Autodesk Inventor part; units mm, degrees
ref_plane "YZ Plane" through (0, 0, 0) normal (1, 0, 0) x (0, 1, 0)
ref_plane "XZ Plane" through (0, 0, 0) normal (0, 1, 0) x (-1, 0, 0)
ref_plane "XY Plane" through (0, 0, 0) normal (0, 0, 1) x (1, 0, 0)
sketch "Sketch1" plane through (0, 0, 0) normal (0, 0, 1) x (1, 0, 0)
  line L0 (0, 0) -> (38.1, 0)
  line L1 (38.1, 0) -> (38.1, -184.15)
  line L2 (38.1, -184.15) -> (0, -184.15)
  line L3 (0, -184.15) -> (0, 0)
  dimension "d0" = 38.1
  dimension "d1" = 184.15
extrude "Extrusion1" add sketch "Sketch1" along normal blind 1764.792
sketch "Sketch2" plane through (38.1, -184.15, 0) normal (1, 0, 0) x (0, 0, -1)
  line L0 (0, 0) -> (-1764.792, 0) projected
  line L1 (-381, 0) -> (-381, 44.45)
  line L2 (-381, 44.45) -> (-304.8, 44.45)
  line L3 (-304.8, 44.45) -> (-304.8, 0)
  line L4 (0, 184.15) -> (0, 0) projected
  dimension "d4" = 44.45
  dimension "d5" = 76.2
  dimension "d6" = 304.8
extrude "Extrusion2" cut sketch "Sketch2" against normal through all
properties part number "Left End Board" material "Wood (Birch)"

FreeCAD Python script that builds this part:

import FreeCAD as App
import Part
import Sketcher
from FreeCAD import Vector
Q = App.Units.Quantity


def add_polygon(sketch, points):
    """Adds a closed chain of lines whose ends are joined by coincident constraints."""
    first, n = sketch.GeometryCount, len(points)
    for a, b in zip(points, points[1:] + points[:1]):
        sketch.addGeometry(Part.LineSegment(App.Vector(*a, 0), App.Vector(*b, 0)), False)
    for i in range(n):
        sketch.addConstraint(Sketcher.Constraint("Coincident", first + i, 2, first + (i + 1) % n, 1))

doc = App.newDocument("Part")
body = doc.addObject("PartDesign::Body", "Body")

# Sketch on XY plane
sketch1 = body.newObject("Sketcher::SketchObject", "Sketch")
sketch1.AttachmentSupport = (doc.getObject("XY_Plane"), [""])
sketch1.MapMode = "FlatFace"
add_polygon(sketch1, [(38, 0), (0, 0), (0, -184), (38, -184)])  # lines 0-3
sketch1.addConstraint([
    Sketcher.Constraint("Horizontal", 0),
    Sketcher.Constraint("Vertical", 1),
    Sketcher.Constraint("Horizontal", 2),
    Sketcher.Constraint("Vertical", 3),
    Sketcher.Constraint("Coincident", 0, 2, -1, 1),
    Sketcher.Constraint("DistanceX", 0, 2, 0, 1, Q("1.5 in")),
    Sketcher.Constraint("DistanceY", 1, 2, 1, 1, Q("7.25 in")),
])
pad1 = body.newObject("PartDesign::Pad", "Pad")
pad1.Profile = sketch1
pad1.Length = Q("69.48 in")

# Sketch on YZ plane
sketch2 = body.newObject("Sketcher::SketchObject", "Sketch001")
sketch2.AttachmentSupport = (doc.getObject("YZ_Plane"), [""])
sketch2.MapMode = "FlatFace"
sketch2.AttachmentOffset = App.Placement(Vector(0, 0, 1.5 * 25.4), App.Rotation())
add_polygon(sketch2, [(-184, 381), (-184, 305), (-140, 305), (-140, 381)])  # lines 0-3
sketch2.addConstraint([
    Sketcher.Constraint("Vertical", 0),
    Sketcher.Constraint("Horizontal", 1),
    Sketcher.Constraint("Vertical", 2),
    Sketcher.Constraint("Horizontal", 3),
    Sketcher.Constraint("DistanceY", 0, 2, 0, 1, Q("3 in")),
    Sketcher.Constraint("DistanceY", -1, 1, 0, 2, Q("12 in")),
    Sketcher.Constraint("DistanceX", 1, 1, 1, 2, Q("1.75 in")),
    Sketcher.Constraint("DistanceX", 1, 2, -1, 1, Q("5.5 in")),
])
pocket1 = body.newObject("PartDesign::Pocket", "Pocket")
pocket1.Profile = sketch2
pocket1.Type = "ThroughAll"

doc.recompute()
